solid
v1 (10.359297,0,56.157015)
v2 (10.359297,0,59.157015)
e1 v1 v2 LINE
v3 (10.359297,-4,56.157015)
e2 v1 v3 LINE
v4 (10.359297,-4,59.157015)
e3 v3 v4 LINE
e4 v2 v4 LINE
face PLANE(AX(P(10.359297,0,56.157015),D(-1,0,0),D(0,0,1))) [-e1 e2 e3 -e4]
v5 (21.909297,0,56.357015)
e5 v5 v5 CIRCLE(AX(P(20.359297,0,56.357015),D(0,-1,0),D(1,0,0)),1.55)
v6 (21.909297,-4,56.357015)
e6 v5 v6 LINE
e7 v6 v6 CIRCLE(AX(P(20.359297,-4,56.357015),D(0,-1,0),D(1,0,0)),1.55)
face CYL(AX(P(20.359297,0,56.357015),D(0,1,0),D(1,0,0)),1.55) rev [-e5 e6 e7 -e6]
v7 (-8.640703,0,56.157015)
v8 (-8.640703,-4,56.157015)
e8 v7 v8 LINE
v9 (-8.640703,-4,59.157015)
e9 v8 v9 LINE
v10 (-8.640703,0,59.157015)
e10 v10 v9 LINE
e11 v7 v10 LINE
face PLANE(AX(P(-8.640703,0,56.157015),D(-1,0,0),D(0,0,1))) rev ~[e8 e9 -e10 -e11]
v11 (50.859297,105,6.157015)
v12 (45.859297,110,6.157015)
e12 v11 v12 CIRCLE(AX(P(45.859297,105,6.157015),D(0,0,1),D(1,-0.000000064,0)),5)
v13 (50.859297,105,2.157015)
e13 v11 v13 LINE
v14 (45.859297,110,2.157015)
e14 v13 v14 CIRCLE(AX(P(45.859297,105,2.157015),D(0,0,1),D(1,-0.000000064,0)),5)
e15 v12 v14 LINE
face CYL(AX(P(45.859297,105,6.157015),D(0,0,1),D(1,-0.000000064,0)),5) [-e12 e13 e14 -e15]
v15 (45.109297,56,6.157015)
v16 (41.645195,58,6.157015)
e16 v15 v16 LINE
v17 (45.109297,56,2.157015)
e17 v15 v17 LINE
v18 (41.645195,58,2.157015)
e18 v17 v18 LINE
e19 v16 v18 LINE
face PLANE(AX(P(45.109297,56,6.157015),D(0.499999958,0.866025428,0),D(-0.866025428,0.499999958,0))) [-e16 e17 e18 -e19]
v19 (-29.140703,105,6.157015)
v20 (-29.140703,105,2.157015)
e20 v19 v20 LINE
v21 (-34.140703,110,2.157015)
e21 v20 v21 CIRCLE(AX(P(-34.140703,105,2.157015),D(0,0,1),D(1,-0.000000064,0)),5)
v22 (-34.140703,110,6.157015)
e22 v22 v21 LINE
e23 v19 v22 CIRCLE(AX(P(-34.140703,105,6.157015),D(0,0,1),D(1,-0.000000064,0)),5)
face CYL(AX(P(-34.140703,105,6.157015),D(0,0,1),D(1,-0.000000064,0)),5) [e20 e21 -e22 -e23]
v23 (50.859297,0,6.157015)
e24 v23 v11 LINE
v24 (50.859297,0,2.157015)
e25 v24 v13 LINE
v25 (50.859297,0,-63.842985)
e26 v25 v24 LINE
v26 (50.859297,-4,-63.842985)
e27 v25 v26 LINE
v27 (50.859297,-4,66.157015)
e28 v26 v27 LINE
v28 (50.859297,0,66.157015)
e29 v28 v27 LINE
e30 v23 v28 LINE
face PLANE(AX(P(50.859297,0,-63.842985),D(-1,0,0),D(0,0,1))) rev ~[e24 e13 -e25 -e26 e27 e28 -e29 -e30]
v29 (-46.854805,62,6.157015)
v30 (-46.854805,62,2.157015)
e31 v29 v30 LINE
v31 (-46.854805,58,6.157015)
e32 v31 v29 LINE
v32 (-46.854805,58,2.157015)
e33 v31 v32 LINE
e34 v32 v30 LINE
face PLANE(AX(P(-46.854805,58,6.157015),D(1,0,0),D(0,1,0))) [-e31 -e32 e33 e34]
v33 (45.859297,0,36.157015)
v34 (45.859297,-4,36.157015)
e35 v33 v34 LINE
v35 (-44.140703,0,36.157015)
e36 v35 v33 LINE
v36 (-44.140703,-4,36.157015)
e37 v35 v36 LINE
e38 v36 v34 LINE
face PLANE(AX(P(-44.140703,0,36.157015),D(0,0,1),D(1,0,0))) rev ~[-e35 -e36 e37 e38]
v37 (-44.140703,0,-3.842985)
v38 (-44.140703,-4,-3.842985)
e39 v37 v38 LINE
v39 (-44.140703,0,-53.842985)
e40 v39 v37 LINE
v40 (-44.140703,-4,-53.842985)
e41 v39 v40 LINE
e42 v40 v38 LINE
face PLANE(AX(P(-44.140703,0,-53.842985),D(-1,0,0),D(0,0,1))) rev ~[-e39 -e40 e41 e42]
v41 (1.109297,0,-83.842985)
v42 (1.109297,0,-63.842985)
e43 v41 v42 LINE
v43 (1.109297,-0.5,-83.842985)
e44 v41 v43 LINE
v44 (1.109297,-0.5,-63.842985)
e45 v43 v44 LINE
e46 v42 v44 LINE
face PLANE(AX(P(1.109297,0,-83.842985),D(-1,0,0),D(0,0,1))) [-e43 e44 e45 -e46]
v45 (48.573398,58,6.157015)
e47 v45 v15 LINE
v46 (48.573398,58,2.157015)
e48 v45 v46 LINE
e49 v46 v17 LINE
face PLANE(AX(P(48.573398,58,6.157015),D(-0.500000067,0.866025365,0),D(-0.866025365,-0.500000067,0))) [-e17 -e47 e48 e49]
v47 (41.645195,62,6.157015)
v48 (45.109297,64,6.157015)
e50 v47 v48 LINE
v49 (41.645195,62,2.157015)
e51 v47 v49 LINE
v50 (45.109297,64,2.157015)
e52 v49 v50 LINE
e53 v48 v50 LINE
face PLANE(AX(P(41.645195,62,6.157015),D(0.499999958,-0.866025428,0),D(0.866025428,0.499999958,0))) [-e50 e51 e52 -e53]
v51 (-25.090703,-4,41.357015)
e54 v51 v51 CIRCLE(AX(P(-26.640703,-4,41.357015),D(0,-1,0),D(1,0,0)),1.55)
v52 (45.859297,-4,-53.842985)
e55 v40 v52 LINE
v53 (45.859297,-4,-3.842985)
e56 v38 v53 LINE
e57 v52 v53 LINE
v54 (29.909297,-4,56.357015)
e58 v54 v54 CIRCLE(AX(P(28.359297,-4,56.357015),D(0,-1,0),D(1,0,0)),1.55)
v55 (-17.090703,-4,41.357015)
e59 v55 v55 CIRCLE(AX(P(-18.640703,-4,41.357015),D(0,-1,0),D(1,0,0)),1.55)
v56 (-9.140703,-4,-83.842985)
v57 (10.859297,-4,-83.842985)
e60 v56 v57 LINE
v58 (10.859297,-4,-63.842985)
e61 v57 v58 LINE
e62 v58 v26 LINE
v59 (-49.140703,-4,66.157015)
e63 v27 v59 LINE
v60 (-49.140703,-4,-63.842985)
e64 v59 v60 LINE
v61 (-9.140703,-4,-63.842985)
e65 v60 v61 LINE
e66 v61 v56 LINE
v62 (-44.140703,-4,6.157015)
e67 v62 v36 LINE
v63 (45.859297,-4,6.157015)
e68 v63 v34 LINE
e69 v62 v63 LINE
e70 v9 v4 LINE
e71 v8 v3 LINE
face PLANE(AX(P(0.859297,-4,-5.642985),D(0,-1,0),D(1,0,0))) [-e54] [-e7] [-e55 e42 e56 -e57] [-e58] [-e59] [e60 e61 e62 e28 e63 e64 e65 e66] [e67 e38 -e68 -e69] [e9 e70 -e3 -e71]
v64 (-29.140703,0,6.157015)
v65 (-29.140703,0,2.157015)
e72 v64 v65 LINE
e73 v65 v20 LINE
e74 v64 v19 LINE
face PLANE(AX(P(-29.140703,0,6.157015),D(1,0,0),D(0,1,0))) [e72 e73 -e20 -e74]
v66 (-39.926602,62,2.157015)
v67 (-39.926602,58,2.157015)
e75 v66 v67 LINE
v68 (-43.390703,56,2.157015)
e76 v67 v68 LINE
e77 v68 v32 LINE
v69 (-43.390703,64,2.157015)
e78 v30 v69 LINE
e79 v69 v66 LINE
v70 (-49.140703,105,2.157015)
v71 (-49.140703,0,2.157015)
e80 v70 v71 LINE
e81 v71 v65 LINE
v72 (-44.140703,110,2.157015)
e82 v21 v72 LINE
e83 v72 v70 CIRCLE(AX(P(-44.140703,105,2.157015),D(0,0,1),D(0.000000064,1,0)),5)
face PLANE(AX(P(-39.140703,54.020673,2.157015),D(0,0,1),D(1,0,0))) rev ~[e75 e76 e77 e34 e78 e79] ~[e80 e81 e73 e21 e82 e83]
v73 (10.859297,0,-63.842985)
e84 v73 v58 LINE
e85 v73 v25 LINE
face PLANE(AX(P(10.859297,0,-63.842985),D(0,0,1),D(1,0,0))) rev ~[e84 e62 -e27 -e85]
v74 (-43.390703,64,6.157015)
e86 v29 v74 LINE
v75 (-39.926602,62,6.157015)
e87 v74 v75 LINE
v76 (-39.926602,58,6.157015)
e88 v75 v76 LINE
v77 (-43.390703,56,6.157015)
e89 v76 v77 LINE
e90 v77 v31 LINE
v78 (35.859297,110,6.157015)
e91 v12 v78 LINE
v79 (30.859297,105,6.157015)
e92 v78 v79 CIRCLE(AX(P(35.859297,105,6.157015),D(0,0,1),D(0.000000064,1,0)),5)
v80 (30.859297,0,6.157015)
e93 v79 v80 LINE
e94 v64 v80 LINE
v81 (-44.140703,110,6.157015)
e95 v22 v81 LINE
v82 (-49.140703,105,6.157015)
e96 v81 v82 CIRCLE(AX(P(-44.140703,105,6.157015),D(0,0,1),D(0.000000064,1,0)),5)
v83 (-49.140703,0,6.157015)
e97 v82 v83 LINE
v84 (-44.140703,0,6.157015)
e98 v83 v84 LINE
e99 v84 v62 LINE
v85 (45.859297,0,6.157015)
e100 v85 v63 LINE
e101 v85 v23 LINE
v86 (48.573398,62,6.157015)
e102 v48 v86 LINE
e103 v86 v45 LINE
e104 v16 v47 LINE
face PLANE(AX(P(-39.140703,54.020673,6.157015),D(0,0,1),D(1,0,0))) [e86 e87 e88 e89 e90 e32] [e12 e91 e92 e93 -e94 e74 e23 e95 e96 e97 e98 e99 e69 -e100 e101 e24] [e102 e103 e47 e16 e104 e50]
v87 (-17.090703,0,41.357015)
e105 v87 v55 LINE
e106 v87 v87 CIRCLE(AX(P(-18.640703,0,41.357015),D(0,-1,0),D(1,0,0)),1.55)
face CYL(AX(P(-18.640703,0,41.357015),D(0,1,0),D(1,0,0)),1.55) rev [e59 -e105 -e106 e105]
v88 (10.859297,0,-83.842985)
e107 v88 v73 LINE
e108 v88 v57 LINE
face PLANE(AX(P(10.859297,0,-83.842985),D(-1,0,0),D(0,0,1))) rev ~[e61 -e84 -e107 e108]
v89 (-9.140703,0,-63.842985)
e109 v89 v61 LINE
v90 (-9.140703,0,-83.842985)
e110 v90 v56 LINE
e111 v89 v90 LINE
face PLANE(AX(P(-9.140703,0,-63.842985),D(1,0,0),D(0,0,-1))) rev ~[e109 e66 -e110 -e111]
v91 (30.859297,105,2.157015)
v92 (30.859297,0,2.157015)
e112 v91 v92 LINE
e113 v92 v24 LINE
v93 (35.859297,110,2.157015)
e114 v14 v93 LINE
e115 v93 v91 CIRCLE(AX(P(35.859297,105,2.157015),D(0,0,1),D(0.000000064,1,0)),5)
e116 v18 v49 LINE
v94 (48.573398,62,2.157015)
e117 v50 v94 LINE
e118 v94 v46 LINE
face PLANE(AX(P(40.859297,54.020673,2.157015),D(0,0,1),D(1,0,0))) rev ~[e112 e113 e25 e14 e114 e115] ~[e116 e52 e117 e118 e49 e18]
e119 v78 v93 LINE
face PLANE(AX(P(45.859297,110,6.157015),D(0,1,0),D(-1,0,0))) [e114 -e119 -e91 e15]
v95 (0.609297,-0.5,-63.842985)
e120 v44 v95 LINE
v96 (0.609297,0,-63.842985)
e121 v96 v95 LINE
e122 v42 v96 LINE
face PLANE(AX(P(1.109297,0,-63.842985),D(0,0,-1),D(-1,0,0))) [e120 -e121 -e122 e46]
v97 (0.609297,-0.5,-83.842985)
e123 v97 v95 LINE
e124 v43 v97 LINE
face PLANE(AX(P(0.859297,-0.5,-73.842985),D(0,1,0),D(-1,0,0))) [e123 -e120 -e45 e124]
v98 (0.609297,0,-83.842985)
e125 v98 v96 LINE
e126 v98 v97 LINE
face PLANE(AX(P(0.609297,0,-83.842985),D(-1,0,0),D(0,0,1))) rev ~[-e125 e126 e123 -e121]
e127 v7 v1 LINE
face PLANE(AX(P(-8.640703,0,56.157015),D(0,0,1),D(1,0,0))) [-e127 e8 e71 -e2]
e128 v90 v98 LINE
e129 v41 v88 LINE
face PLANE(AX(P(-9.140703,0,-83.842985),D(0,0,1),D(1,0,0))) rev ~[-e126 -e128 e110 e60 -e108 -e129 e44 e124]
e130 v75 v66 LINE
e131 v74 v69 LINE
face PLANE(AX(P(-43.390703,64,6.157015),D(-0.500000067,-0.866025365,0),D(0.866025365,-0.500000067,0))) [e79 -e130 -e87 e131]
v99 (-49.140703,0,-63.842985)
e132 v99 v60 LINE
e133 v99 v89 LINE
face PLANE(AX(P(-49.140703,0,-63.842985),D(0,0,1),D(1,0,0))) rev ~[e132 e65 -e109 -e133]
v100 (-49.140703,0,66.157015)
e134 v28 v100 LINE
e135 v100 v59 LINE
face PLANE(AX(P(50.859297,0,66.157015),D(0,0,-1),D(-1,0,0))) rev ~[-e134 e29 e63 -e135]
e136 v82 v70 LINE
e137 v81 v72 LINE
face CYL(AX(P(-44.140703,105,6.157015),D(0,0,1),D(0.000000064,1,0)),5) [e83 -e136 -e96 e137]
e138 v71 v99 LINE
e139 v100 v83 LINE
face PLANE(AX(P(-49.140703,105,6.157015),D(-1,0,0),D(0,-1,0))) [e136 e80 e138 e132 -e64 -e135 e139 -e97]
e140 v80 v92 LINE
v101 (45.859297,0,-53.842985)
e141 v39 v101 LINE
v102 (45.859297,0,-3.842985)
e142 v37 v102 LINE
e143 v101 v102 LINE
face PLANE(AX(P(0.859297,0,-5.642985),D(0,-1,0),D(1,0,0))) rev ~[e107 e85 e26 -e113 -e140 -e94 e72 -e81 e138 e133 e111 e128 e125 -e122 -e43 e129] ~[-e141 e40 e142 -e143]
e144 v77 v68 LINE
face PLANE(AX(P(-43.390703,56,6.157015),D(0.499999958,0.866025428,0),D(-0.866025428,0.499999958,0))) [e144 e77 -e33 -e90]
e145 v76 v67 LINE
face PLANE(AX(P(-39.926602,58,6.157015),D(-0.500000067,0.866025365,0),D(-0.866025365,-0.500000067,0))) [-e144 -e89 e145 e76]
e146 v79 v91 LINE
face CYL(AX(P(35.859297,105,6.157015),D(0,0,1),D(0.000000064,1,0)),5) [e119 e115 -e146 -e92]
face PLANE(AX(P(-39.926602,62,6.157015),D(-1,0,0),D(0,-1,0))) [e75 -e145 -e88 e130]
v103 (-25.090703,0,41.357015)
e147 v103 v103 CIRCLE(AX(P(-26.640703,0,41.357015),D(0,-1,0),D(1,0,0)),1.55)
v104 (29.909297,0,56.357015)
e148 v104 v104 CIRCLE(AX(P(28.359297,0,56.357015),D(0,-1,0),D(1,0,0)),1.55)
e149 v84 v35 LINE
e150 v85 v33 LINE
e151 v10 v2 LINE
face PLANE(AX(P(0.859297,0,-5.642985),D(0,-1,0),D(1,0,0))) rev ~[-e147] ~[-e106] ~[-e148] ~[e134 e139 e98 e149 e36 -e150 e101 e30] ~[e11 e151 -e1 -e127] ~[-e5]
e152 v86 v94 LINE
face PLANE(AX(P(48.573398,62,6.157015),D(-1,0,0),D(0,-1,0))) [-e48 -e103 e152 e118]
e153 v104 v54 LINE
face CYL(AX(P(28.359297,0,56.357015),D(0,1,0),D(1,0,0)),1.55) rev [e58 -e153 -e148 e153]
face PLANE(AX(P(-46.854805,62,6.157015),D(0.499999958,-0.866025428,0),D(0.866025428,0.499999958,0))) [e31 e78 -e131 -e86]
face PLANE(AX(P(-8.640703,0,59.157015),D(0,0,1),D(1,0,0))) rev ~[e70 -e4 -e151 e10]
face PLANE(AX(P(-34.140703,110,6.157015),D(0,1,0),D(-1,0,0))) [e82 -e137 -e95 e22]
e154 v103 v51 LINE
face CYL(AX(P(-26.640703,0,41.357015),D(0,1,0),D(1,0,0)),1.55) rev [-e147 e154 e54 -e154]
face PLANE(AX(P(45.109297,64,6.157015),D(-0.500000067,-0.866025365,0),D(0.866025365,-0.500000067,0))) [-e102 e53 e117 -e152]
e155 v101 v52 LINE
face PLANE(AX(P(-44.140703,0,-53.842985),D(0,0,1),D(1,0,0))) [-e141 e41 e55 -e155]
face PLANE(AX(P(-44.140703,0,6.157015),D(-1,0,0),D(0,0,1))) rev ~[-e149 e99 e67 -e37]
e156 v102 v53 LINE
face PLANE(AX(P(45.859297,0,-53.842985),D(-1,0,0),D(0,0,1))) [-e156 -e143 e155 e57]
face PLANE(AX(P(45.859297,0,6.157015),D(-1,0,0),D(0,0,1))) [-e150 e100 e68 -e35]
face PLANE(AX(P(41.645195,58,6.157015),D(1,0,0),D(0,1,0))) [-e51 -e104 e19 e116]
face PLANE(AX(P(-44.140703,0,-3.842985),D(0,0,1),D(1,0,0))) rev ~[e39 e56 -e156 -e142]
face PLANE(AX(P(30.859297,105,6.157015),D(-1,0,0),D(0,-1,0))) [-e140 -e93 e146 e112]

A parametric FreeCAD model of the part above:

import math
import FreeCAD as App
import Part
import Sketcher
from FreeCAD import Vector
Q = App.Units.Quantity


def add_polygon(sketch, points):
    """Adds a closed chain of lines whose ends are joined by coincident constraints."""
    first, n = sketch.GeometryCount, len(points)
    for a, b in zip(points, points[1:] + points[:1]):
        sketch.addGeometry(Part.LineSegment(App.Vector(*a, 0), App.Vector(*b, 0)), False)
    for i in range(n):
        sketch.addConstraint(Sketcher.Constraint("Coincident", first + i, 2, first + (i + 1) % n, 1))

doc = App.newDocument("Part")
body = doc.addObject("PartDesign::Body", "Body")

# Sketch on XZ plane
sketch1 = body.newObject("Sketcher::SketchObject", "Sketch")
sketch1.AttachmentSupport = (doc.getObject("XZ_Plane"), [""])
sketch1.MapMode = "FlatFace"
add_polygon(sketch1, [(50.9, 66.2), (-49.1, 66.2), (-49.1, -63.8), (-9.1, -63.8), (-9.1, -83.8), (10.9, -83.8), (10.9, -63.8), (50.9, -63.8)])  # lines 0-7
add_polygon(sketch1, [(45.9, -53.8), (-44.1, -53.8), (-44.1, -3.8), (45.9, -3.8)])  # lines 8-11
sketch1.addGeometry(Part.Circle(Vector(-26.6, 41.4, 0), Vector(0, 0, 1), 1.6), False)  # 12
sketch1.addGeometry(Part.Circle(Vector(-18.6, 41.4, 0), Vector(0, 0, 1), 1.6), False)  # 13
add_polygon(sketch1, [(45.9, 6.2), (-44.1, 6.2), (-44.1, 36.2), (45.9, 36.2)])  # lines 14-17
add_polygon(sketch1, [(10.4, 56.2), (-8.6, 56.2), (-8.6, 59.2), (10.4, 59.2)])  # lines 18-21
sketch1.addGeometry(Part.Circle(Vector(20.4, 56.4, 0), Vector(0, 0, 1), 1.6), False)  # 22
sketch1.addGeometry(Part.Circle(Vector(28.4, 56.4, 0), Vector(0, 0, 1), 1.6), False)  # 23
sketch1.addConstraint(Sketcher.Constraint("Horizontal", 0))
sketch1.addConstraint(Sketcher.Constraint("Vertical", 1))
sketch1.addConstraint(Sketcher.Constraint("Horizontal", 2))
sketch1.addConstraint(Sketcher.Constraint("Vertical", 3))
sketch1.addConstraint(Sketcher.Constraint("Horizontal", 4))
sketch1.addConstraint(Sketcher.Constraint("Vertical", 5))
sketch1.addConstraint(Sketcher.Constraint("Horizontal", 6))
sketch1.addConstraint(Sketcher.Constraint("Vertical", 7))
sketch1.addConstraint(Sketcher.Constraint("Horizontal", 8))
sketch1.addConstraint(Sketcher.Constraint("Vertical", 9))
sketch1.addConstraint(Sketcher.Constraint("Horizontal", 10))
sketch1.addConstraint(Sketcher.Constraint("Vertical", 11))
sketch1.addConstraint(Sketcher.Constraint("Horizontal", 14))
sketch1.addConstraint(Sketcher.Constraint("Vertical", 15))
sketch1.addConstraint(Sketcher.Constraint("Horizontal", 16))
sketch1.addConstraint(Sketcher.Constraint("Vertical", 17))
sketch1.addConstraint(Sketcher.Constraint("Horizontal", 18))
sketch1.addConstraint(Sketcher.Constraint("Vertical", 19))
sketch1.addConstraint(Sketcher.Constraint("Horizontal", 20))
sketch1.addConstraint(Sketcher.Constraint("Vertical", 21))
sketch1.addConstraint(Sketcher.Constraint("Equal", 12, 13))
sketch1.addConstraint(Sketcher.Constraint("Equal", 13, 22))
sketch1.addConstraint(Sketcher.Constraint("Equal", 22, 23))
sketch1.addConstraint(Sketcher.Constraint("Horizontal", 12, 3, 13, 3))
sketch1.addConstraint(Sketcher.Constraint("Horizontal", 22, 3, 23, 3))
sketch1.addConstraint(Sketcher.Constraint("Horizontal", 2, 2, 5, 2))
sketch1.addConstraint(Sketcher.Constraint("Vertical", 9, 2, 14, 2))
sketch1.addConstraint(Sketcher.Constraint("Vertical", 11, 2, 16, 2))
sketch1.addConstraint(Sketcher.Constraint("Equal", 2, 6))
sketch1.addConstraint(Sketcher.Constraint("Equal", 4, 3))
sketch1.addConstraint(Sketcher.Constraint("Diameter", 12, 3.1))
sketch1.addConstraint(Sketcher.Constraint("DistanceX", 0, 2, 0, 1, 100.0))
sketch1.addConstraint(Sketcher.Constraint("DistanceX", 2, 1, 2, 2, 40.0))
sketch1.addConstraint(Sketcher.Constraint("DistanceX", 8, 2, 8, 1, 90.0))
sketch1.addConstraint(Sketcher.Constraint("DistanceX", 18, 2, 18, 1, 19.0))
sketch1.addConstraint(Sketcher.Constraint("DistanceY", 1, 2, 1, 1, 130.0))
sketch1.addConstraint(Sketcher.Constraint("DistanceY", 9, 1, 9, 2, 50.0))
sketch1.addConstraint(Sketcher.Constraint("DistanceY", 15, 1, 15, 2, 30.0))
sketch1.addConstraint(Sketcher.Constraint("DistanceY", 19, 1, 19, 2, 3.0))
sketch1.addConstraint(Sketcher.Constraint("DistanceX", 12, 3, 13, 3, 8.0))
sketch1.addConstraint(Sketcher.Constraint("DistanceX", 13, 3, 22, 3, 39.0))
sketch1.addConstraint(Sketcher.Constraint("DistanceY", 13, 3, 22, 3, 15.0))
sketch1.addConstraint(Sketcher.Constraint("DistanceX", 22, 3, 23, 3, 8.0))
sketch1.addConstraint(Sketcher.Constraint("DistanceX", 1, 2, 8, 2, 5.0))
sketch1.addConstraint(Sketcher.Constraint("DistanceY", 1, 2, 8, 2, 10.0))
sketch1.addConstraint(Sketcher.Constraint("DistanceY", 9, 2, 14, 2, 10.0))
sketch1.addConstraint(Sketcher.Constraint("DistanceX", 13, 3, 18, 2, 10.0))
sketch1.addConstraint(Sketcher.Constraint("DistanceY", 15, 2, 18, 2, 20.0))
sketch1.addConstraint(Sketcher.Constraint("DistanceX", 0, 2, 12, 3, 22.5))
sketch1.addConstraint(Sketcher.Constraint("DistanceY", 12, 3, 0, 2, 24.8))
sketch1.addConstraint(Sketcher.Constraint("DistanceX", 12, 3, -1, 1, 26.640703))
sketch1.addConstraint(Sketcher.Constraint("DistanceY", -1, 1, 12, 3, 41.357015))
pad1 = body.newObject("PartDesign::Pad", "Pad")
pad1.Profile = sketch1
pad1.Length = 4

# Sketch on XY plane
sketch2 = body.newObject("Sketcher::SketchObject", "Sketch001")
sketch2.AttachmentSupport = (doc.getObject("XY_Plane"), [""])
sketch2.MapMode = "FlatFace"
sketch2.AttachmentOffset = App.Placement(Vector(0, 0, 6.157015), App.Rotation())
sketch2.addGeometry(Part.LineSegment(Vector(-49.1, 105, 0), Vector(-49.1, 0, 0)), False)  # 0
sketch2.addGeometry(Part.LineSegment(Vector(-49.1, 0, 0), Vector(-29.1, 0, 0)), False)  # 1
sketch2.addGeometry(Part.LineSegment(Vector(-29.1, 0, 0), Vector(-29.1, 105, 0)), False)  # 2
sketch2.addGeometry(Part.ArcOfCircle(Part.Circle(Vector(-34.1, 105, 0), Vector(0, 0, 1), 5), math.radians(0), math.radians(90)), False)  # 3
sketch2.addGeometry(Part.LineSegment(Vector(-34.1, 110, 0), Vector(-44.1, 110, 0)), False)  # 4
sketch2.addGeometry(Part.ArcOfCircle(Part.Circle(Vector(-44.1, 105, 0), Vector(0, 0, 1), 5), math.radians(90), math.radians(180)), False)  # 5
add_polygon(sketch2, [(-46.9, 58), (-46.9, 62), (-43.4, 64), (-39.9, 62), (-39.9, 58), (-43.4, 56)])  # lines 6-11
sketch2.addGeometry(Part.LineSegment(Vector(30.9, 105, 0), Vector(30.9, 0, 0)), False)  # 12
sketch2.addGeometry(Part.LineSegment(Vector(30.9, 0, 0), Vector(50.9, 0, 0)), False)  # 13
sketch2.addGeometry(Part.LineSegment(Vector(50.9, 0, 0), Vector(50.9, 105, 0)), False)  # 14
sketch2.addGeometry(Part.ArcOfCircle(Part.Circle(Vector(45.9, 105, 0), Vector(0, 0, 1), 5), math.radians(0), math.radians(90)), False)  # 15
sketch2.addGeometry(Part.LineSegment(Vector(45.9, 110, 0), Vector(35.9, 110, 0)), False)  # 16
sketch2.addGeometry(Part.ArcOfCircle(Part.Circle(Vector(35.9, 105, 0), Vector(0, 0, 1), 5), math.radians(90), math.radians(180)), False)  # 17
add_polygon(sketch2, [(41.6, 62), (45.1, 64), (48.6, 62), (48.6, 58), (45.1, 56), (41.6, 58)])  # lines 18-23
sketch2.addConstraint(Sketcher.Constraint("Coincident", 0, 2, 1, 1))
sketch2.addConstraint(Sketcher.Constraint("Coincident", 1, 2, 2, 1))
sketch2.addConstraint(Sketcher.Constraint("Tangent", 2, 2, 3, 1))
sketch2.addConstraint(Sketcher.Constraint("Tangent", 3, 2, 4, 1))
sketch2.addConstraint(Sketcher.Constraint("Tangent", 4, 2, 5, 1))
sketch2.addConstraint(Sketcher.Constraint("Tangent", 5, 2, 0, 1))
sketch2.addConstraint(Sketcher.Constraint("Coincident", 12, 2, 13, 1))
sketch2.addConstraint(Sketcher.Constraint("Coincident", 13, 2, 14, 1))
sketch2.addConstraint(Sketcher.Constraint("Tangent", 14, 2, 15, 1))
sketch2.addConstraint(Sketcher.Constraint("Tangent", 15, 2, 16, 1))
sketch2.addConstraint(Sketcher.Constraint("Tangent", 16, 2, 17, 1))
sketch2.addConstraint(Sketcher.Constraint("Tangent", 17, 2, 12, 1))
sketch2.addConstraint(Sketcher.Constraint("Vertical", 0))
sketch2.addConstraint(Sketcher.Constraint("Horizontal", 1))
sketch2.addConstraint(Sketcher.Constraint("Vertical", 2))
sketch2.addConstraint(Sketcher.Constraint("Horizontal", 4))
sketch2.addConstraint(Sketcher.Constraint("Vertical", 6))
sketch2.addConstraint(Sketcher.Constraint("Vertical", 9))
sketch2.addConstraint(Sketcher.Constraint("Vertical", 12))
sketch2.addConstraint(Sketcher.Constraint("Horizontal", 13))
sketch2.addConstraint(Sketcher.Constraint("Vertical", 14))
sketch2.addConstraint(Sketcher.Constraint("Horizontal", 16))
sketch2.addConstraint(Sketcher.Constraint("Vertical", 20))
sketch2.addConstraint(Sketcher.Constraint("Vertical", 23))
sketch2.addConstraint(Sketcher.Constraint("Equal", 3, 5))
sketch2.addConstraint(Sketcher.Constraint("Equal", 5, 15))
sketch2.addConstraint(Sketcher.Constraint("Equal", 15, 17))
sketch2.addConstraint(Sketcher.Constraint("PointOnObject", 0, 2, -1))
sketch2.addConstraint(Sketcher.Constraint("PointOnObject", 12, 2, -1))
sketch2.addConstraint(Sketcher.Constraint("Parallel", 7, 10))
sketch2.addConstraint(Sketcher.Constraint("Parallel", 8, 11))
sketch2.addConstraint(Sketcher.Constraint("Parallel", 10, 18))
sketch2.addConstraint(Sketcher.Constraint("Parallel", 11, 19))
sketch2.addConstraint(Sketcher.Constraint("Parallel", 18, 21))
sketch2.addConstraint(Sketcher.Constraint("Parallel", 19, 22))
sketch2.addConstraint(Sketcher.Constraint("Horizontal", 5, 3, 15, 3))
sketch2.addConstraint(Sketcher.Constraint("Horizontal", 6, 2, 8, 2))
sketch2.addConstraint(Sketcher.Constraint("Horizontal", 9, 2, 11, 2))
sketch2.addConstraint(Sketcher.Constraint("Horizontal", 7, 2, 18, 2))
sketch2.addConstraint(Sketcher.Constraint("Horizontal", 8, 2, 19, 2))
sketch2.addConstraint(Sketcher.Constraint("Horizontal", 11, 2, 20, 2))
sketch2.addConstraint(Sketcher.Constraint("Horizontal", 10, 2, 21, 2))
sketch2.addConstraint(Sketcher.Constraint("Horizontal", 20, 2, 22, 2))
sketch2.addConstraint(Sketcher.Constraint("Vertical", 7, 2, 10, 2))
sketch2.addConstraint(Sketcher.Constraint("Equal", 1, 13))
sketch2.addConstraint(Sketcher.Constraint("Radius", 3, 5.0))
sketch2.addConstraint(Sketcher.Constraint("DistanceX", 1, 1, 1, 2, 20.0))
sketch2.addConstraint(Sketcher.Constraint("DistanceY", 0, 2, 0, 1, 105.0))
sketch2.addConstraint(Sketcher.Constraint("DistanceY", 6, 1, 6, 2, 4.0))
sketch2.addConstraint(Sketcher.Constraint("Angle", 7, Q("29.999997 deg")))
sketch2.addConstraint(Sketcher.Constraint("Distance", 7, 4.0))
sketch2.addConstraint(Sketcher.Constraint("DistanceY", -1, 1, 6, 2, 62.0))
sketch2.addConstraint(Sketcher.Constraint("DistanceX", 3, 3, 15, 3, 80.0))
sketch2.addConstraint(Sketcher.Constraint("DistanceX", 5, 3, 7, 2, 0.75))
sketch2.addConstraint(Sketcher.Constraint("DistanceX", 18, 2, 15, 3, 0.75))
sketch2.addConstraint(Sketcher.Constraint("DistanceX", 3, 3, -1, 1, 34.140703))
pad2 = body.newObject("PartDesign::Pad", "Pad001")
pad2.Profile = sketch2
pad2.Length = 4
pad2.Reversed = True

# Sketch on XZ plane
sketch3 = body.newObject("Sketcher::SketchObject", "Sketch002")
sketch3.AttachmentSupport = (doc.getObject("XZ_Plane"), [""])
sketch3.MapMode = "FlatFace"
add_polygon(sketch3, [(1.1, -63.8), (1.1, -83.8), (0.6, -83.8), (0.6, -63.8)])  # lines 0-3
sketch3.addConstraint(Sketcher.Constraint("Vertical", 0))
sketch3.addConstraint(Sketcher.Constraint("Horizontal", 1))
sketch3.addConstraint(Sketcher.Constraint("Vertical", 2))
sketch3.addConstraint(Sketcher.Constraint("Horizontal", 3))
sketch3.addConstraint(Sketcher.Constraint("DistanceY", 0, 2, 0, 1, 20.0))
sketch3.addConstraint(Sketcher.Constraint("DistanceX", 1, 2, 1, 1, 0.5))
sketch3.addConstraint(Sketcher.Constraint("DistanceX", -1, 1, 0, 2, 1.109297))
sketch3.addConstraint(Sketcher.Constraint("DistanceY", 0, 2, -1, 1, 83.842985))
pocket1 = body.newObject("PartDesign::Pocket", "Pocket")
pocket1.Profile = sketch3
pocket1.Length = 0.5
pocket1.Reversed = True

doc.recompute()
